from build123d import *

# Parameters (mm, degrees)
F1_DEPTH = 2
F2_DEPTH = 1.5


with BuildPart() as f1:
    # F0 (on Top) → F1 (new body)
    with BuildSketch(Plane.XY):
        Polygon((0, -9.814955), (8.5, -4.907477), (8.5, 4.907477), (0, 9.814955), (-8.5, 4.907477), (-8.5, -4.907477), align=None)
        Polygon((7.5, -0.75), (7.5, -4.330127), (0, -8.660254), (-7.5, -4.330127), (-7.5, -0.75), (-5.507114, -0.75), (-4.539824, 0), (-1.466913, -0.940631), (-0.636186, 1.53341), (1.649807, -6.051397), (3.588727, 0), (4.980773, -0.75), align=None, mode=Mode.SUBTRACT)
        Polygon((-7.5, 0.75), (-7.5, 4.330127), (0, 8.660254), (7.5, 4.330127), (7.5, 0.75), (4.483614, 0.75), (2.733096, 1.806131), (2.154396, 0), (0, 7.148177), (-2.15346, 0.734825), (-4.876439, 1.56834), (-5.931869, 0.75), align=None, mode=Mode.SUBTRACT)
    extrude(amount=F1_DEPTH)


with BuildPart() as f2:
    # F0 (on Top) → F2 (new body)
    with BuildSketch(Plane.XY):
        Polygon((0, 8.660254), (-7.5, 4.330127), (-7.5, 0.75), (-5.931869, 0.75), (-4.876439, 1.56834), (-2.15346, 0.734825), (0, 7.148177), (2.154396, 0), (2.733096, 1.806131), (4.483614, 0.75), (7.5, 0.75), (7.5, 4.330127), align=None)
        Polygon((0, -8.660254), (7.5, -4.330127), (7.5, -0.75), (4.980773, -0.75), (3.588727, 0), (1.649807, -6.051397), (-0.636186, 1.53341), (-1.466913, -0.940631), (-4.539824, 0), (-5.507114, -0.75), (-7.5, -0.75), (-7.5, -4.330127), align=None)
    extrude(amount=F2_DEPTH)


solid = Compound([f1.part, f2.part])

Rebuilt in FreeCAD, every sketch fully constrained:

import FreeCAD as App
import Part
import Sketcher

V = App.Vector
Q = App.Units.Quantity

doc = App.newDocument("Part")
params = doc.addObject("Spreadsheet::Sheet", "Params")
for row, (alias, value) in enumerate([
    ("pad1_length", "2 mm"),
    ("pad2_length", "1.5 mm"),
], start=1):
    params.set(f"A{row}", alias)
    params.set(f"B{row}", "=" + value)
    params.setAlias(f"B{row}", alias)

body = doc.addObject("PartDesign::Body", "Body")

# Sketch on XY plane
sketch1 = body.newObject("Sketcher::SketchObject", "Sketch")
sketch1.AttachmentSupport = (doc.getObject("XY_Plane"), [""])
sketch1.MapMode = "FlatFace"
sketch1.addGeometry(Part.LineSegment(V(0, -9.8, 0), V(8.5, -4.9, 0)), False)
sketch1.addGeometry(Part.LineSegment(V(8.5, -4.9, 0), V(8.5, 4.9, 0)), False)
sketch1.addGeometry(Part.LineSegment(V(8.5, 4.9, 0), V(0, 9.8, 0)), False)
sketch1.addGeometry(Part.LineSegment(V(0, 9.8, 0), V(-8.5, 4.9, 0)), False)
sketch1.addGeometry(Part.LineSegment(V(-8.5, 4.9, 0), V(-8.5, -4.9, 0)), False)
sketch1.addGeometry(Part.LineSegment(V(-8.5, -4.9, 0), V(0, -9.8, 0)), False)
sketch1.addGeometry(Part.LineSegment(V(5, -0.8, 0), V(7.5, -0.8, 0)), False)
sketch1.addGeometry(Part.LineSegment(V(7.5, -0.8, 0), V(7.5, -4.3, 0)), False)
sketch1.addGeometry(Part.LineSegment(V(7.5, -4.3, 0), V(0, -8.7, 0)), False)
sketch1.addGeometry(Part.LineSegment(V(0, -8.7, 0), V(-7.5, -4.3, 0)), False)
sketch1.addGeometry(Part.LineSegment(V(-7.5, -4.3, 0), V(-7.5, -0.8, 0)), False)
sketch1.addGeometry(Part.LineSegment(V(-7.5, -0.8, 0), V(-5.5, -0.8, 0)), False)
sketch1.addGeometry(Part.LineSegment(V(-5.5, -0.8, 0), V(-4.5, 0, 0)), False)
sketch1.addGeometry(Part.LineSegment(V(-4.5, 0, 0), V(-1.5, -0.9, 0)), False)
sketch1.addGeometry(Part.LineSegment(V(-1.5, -0.9, 0), V(-0.6, 1.5, 0)), False)
sketch1.addGeometry(Part.LineSegment(V(-0.6, 1.5, 0), V(1.6, -6.1, 0)), False)
sketch1.addGeometry(Part.LineSegment(V(1.6, -6.1, 0), V(3.6, 0, 0)), False)
sketch1.addGeometry(Part.LineSegment(V(3.6, 0, 0), V(5, -0.8, 0)), False)
sketch1.addGeometry(Part.LineSegment(V(-5.9, 0.8, 0), V(-7.5, 0.8, 0)), False)
sketch1.addGeometry(Part.LineSegment(V(-7.5, 0.8, 0), V(-7.5, 4.3, 0)), False)
sketch1.addGeometry(Part.LineSegment(V(-7.5, 4.3, 0), V(0, 8.7, 0)), False)
sketch1.addGeometry(Part.LineSegment(V(0, 8.7, 0), V(7.5, 4.3, 0)), False)
sketch1.addGeometry(Part.LineSegment(V(7.5, 4.3, 0), V(7.5, 0.8, 0)), False)
sketch1.addGeometry(Part.LineSegment(V(7.5, 0.8, 0), V(4.5, 0.8, 0)), False)
sketch1.addGeometry(Part.LineSegment(V(4.5, 0.8, 0), V(2.7, 1.8, 0)), False)
sketch1.addGeometry(Part.LineSegment(V(2.7, 1.8, 0), V(2.2, 0, 0)), False)
sketch1.addGeometry(Part.LineSegment(V(2.2, 0, 0), V(0, 7.1, 0)), False)
sketch1.addGeometry(Part.LineSegment(V(0, 7.1, 0), V(-2.2, 0.7, 0)), False)
sketch1.addGeometry(Part.LineSegment(V(-2.2, 0.7, 0), V(-4.9, 1.6, 0)), False)
sketch1.addGeometry(Part.LineSegment(V(-4.9, 1.6, 0), V(-5.9, 0.8, 0)), False)
sketch1.addConstraint(Sketcher.Constraint("Coincident", 0, 2, 1, 1))
sketch1.addConstraint(Sketcher.Constraint("Coincident", 1, 2, 2, 1))
sketch1.addConstraint(Sketcher.Constraint("Coincident", 2, 2, 3, 1))
sketch1.addConstraint(Sketcher.Constraint("Coincident", 3, 2, 4, 1))
sketch1.addConstraint(Sketcher.Constraint("Coincident", 4, 2, 5, 1))
sketch1.addConstraint(Sketcher.Constraint("Coincident", 5, 2, 0, 1))
sketch1.addConstraint(Sketcher.Constraint("Coincident", 6, 2, 7, 1))
sketch1.addConstraint(Sketcher.Constraint("Coincident", 7, 2, 8, 1))
sketch1.addConstraint(Sketcher.Constraint("Coincident", 8, 2, 9, 1))
sketch1.addConstraint(Sketcher.Constraint("Coincident", 9, 2, 10, 1))
sketch1.addConstraint(Sketcher.Constraint("Coincident", 10, 2, 11, 1))
sketch1.addConstraint(Sketcher.Constraint("Coincident", 11, 2, 12, 1))
sketch1.addConstraint(Sketcher.Constraint("Coincident", 12, 2, 13, 1))
sketch1.addConstraint(Sketcher.Constraint("Coincident", 13, 2, 14, 1))
sketch1.addConstraint(Sketcher.Constraint("Coincident", 14, 2, 15, 1))
sketch1.addConstraint(Sketcher.Constraint("Coincident", 15, 2, 16, 1))
sketch1.addConstraint(Sketcher.Constraint("Coincident", 16, 2, 17, 1))
sketch1.addConstraint(Sketcher.Constraint("Coincident", 17, 2, 6, 1))
sketch1.addConstraint(Sketcher.Constraint("Coincident", 18, 2, 19, 1))
sketch1.addConstraint(Sketcher.Constraint("Coincident", 19, 2, 20, 1))
sketch1.addConstraint(Sketcher.Constraint("Coincident", 20, 2, 21, 1))
sketch1.addConstraint(Sketcher.Constraint("Coincident", 21, 2, 22, 1))
sketch1.addConstraint(Sketcher.Constraint("Coincident", 22, 2, 23, 1))
sketch1.addConstraint(Sketcher.Constraint("Coincident", 23, 2, 24, 1))
sketch1.addConstraint(Sketcher.Constraint("Coincident", 24, 2, 25, 1))
sketch1.addConstraint(Sketcher.Constraint("Coincident", 25, 2, 26, 1))
sketch1.addConstraint(Sketcher.Constraint("Coincident", 26, 2, 27, 1))
sketch1.addConstraint(Sketcher.Constraint("Coincident", 27, 2, 28, 1))
sketch1.addConstraint(Sketcher.Constraint("Coincident", 28, 2, 29, 1))
sketch1.addConstraint(Sketcher.Constraint("Coincident", 29, 2, 18, 1))
sketch1.addConstraint(Sketcher.Constraint("Vertical", 1))
sketch1.addConstraint(Sketcher.Constraint("Vertical", 4))
sketch1.addConstraint(Sketcher.Constraint("Horizontal", 6))
sketch1.addConstraint(Sketcher.Constraint("Vertical", 7))
sketch1.addConstraint(Sketcher.Constraint("Vertical", 10))
sketch1.addConstraint(Sketcher.Constraint("Horizontal", 11))
sketch1.addConstraint(Sketcher.Constraint("Horizontal", 18))
sketch1.addConstraint(Sketcher.Constraint("Vertical", 19))
sketch1.addConstraint(Sketcher.Constraint("Vertical", 22))
sketch1.addConstraint(Sketcher.Constraint("Horizontal", 23))
sketch1.addConstraint(Sketcher.Constraint("Symmetric", 0, 2, 3, 2, -1, 1))
sketch1.addConstraint(Sketcher.Constraint("Symmetric", 2, 2, 5, 2, -1, 1))
sketch1.addConstraint(Sketcher.Constraint("Symmetric", 6, 2, 18, 2, -1, 1))
sketch1.addConstraint(Sketcher.Constraint("Symmetric", 8, 2, 20, 2, -1, 1))
sketch1.addConstraint(Sketcher.Constraint("Symmetric", 9, 2, 21, 2, -1, 1))
sketch1.addConstraint(Sketcher.Constraint("Symmetric", 7, 2, 9, 2, -2))
sketch1.addConstraint(Sketcher.Constraint("PointOnObject", 2, 2, -2))
sketch1.addConstraint(Sketcher.Constraint("PointOnObject", 8, 2, -2))
sketch1.addConstraint(Sketcher.Constraint("PointOnObject", 12, 2, -1))
sketch1.addConstraint(Sketcher.Constraint("PointOnObject", 16, 2, -1))
sketch1.addConstraint(Sketcher.Constraint("PointOnObject", 25, 2, -1))
sketch1.addConstraint(Sketcher.Constraint("PointOnObject", 26, 2, -2))
sketch1.addConstraint(Sketcher.Constraint("Parallel", 2, 5))
sketch1.addConstraint(Sketcher.Constraint("Parallel", 3, 8))
sketch1.addConstraint(Sketcher.Constraint("Parallel", 5, 9))
sketch1.addConstraint(Sketcher.Constraint("Parallel", 8, 20))
sketch1.addConstraint(Sketcher.Constraint("Parallel", 16, 25))
sketch1.addConstraint(Sketcher.Constraint("Parallel", 15, 26))
sketch1.addConstraint(Sketcher.Constraint("Parallel", 14, 27))
sketch1.addConstraint(Sketcher.Constraint("Parallel", 13, 28))
sketch1.addConstraint(Sketcher.Constraint("Parallel", 12, 29))
sketch1.addConstraint(Sketcher.Constraint("Horizontal", 6, 2, 10, 2))
sketch1.addConstraint(Sketcher.Constraint("Horizontal", 18, 2, 22, 2))
sketch1.addConstraint(Sketcher.Constraint("Angle", 0, Q("30.000004 deg")))
sketch1.addConstraint(Sketcher.Constraint("DistanceX", 3, 2, 1, 2, 17.0))
sketch1.addConstraint(Sketcher.Constraint("DistanceX", 6, 2, 0, 2, 1.0))
sketch1.addConstraint(Sketcher.Constraint("DistanceY", 10, 2, 18, 2, 1.5))
sketch1.addConstraint(Sketcher.Constraint("DistanceX", 18, 2, 18, 1, 1.568131))
sketch1.addConstraint(Sketcher.Constraint("DistanceY", 5, 2, 8, 2, 1.154701))
sketch1.addConstraint(Sketcher.Constraint("DistanceX", 11, 2, 13, 2, 4.040201))
sketch1.addConstraint(Sketcher.Constraint("DistanceX", 25, 2, 24, 2, 0.5787))
sketch1.addConstraint(Sketcher.Constraint("Distance", 12, 1.223989))
sketch1.addConstraint(Sketcher.Constraint("Distance", 15, 7.921809))
sketch1.addConstraint(Sketcher.Constraint("Distance", 17, 1.581231))
sketch1.addConstraint(Sketcher.Constraint("Distance", 26, 7.465779))
sketch1.addConstraint(Sketcher.Constraint("Distance", 27, 6.76524))
sketch1.addConstraint(Sketcher.Constraint("Distance", 29, 1.33552))
sketch1.addConstraint(Sketcher.Constraint("DistanceX", 6, 1, 6, 2, 2.519227))
sketch1.addConstraint(Sketcher.Constraint("DistanceX", 11, 1, 11, 2, 1.992886))
sketch1.addConstraint(Sketcher.Constraint("DistanceX", 23, 2, 23, 1, 3.016386))
sketch1.addConstraint(Sketcher.Constraint("DistanceY", 1, 1, 1, 2, 9.814954))
sketch1.addConstraint(Sketcher.Constraint("DistanceY", 13, 2, -1, 1, 0.940631))
sketch1.addConstraint(Sketcher.Constraint("DistanceY", -1, 1, 14, 2, 1.53341))
sketch1.addConstraint(Sketcher.Constraint("DistanceY", -1, 1, 24, 2, 1.806131))
pad1 = body.newObject("PartDesign::Pad", "Pad")
pad1.Profile = sketch1
pad1.setExpression("Length", "Params.pad1_length")
body2 = doc.addObject("PartDesign::Body", "Body001")
body2.AllowCompound = True

# Sketch on XY plane
sketch2 = body2.newObject("Sketcher::SketchObject", "Sketch001")
sketch2.AttachmentSupport = (doc.getObject("XY_Plane001"), [""])
sketch2.MapMode = "FlatFace"
sketch2.addGeometry(Part.LineSegment(V(0, 8.7, 0), V(-7.5, 4.3, 0)), False)
sketch2.addGeometry(Part.LineSegment(V(-7.5, 4.3, 0), V(-7.5, 0.8, 0)), False)
sketch2.addGeometry(Part.LineSegment(V(-7.5, 0.8, 0), V(-5.9, 0.8, 0)), False)
sketch2.addGeometry(Part.LineSegment(V(-5.9, 0.8, 0), V(-4.9, 1.6, 0)), False)
sketch2.addGeometry(Part.LineSegment(V(-4.9, 1.6, 0), V(-2.2, 0.7, 0)), False)
sketch2.addGeometry(Part.LineSegment(V(-2.2, 0.7, 0), V(0, 7.1, 0)), False)
sketch2.addGeometry(Part.LineSegment(V(0, 7.1, 0), V(2.2, 0, 0)), False)
sketch2.addGeometry(Part.LineSegment(V(2.2, 0, 0), V(2.7, 1.8, 0)), False)
sketch2.addGeometry(Part.LineSegment(V(2.7, 1.8, 0), V(4.5, 0.8, 0)), False)
sketch2.addGeometry(Part.LineSegment(V(4.5, 0.8, 0), V(7.5, 0.8, 0)), False)
sketch2.addGeometry(Part.LineSegment(V(7.5, 0.8, 0), V(7.5, 4.3, 0)), False)
sketch2.addGeometry(Part.LineSegment(V(7.5, 4.3, 0), V(0, 8.7, 0)), False)
sketch2.addGeometry(Part.LineSegment(V(0, -8.7, 0), V(7.5, -4.3, 0)), False)
sketch2.addGeometry(Part.LineSegment(V(7.5, -4.3, 0), V(7.5, -0.8, 0)), False)
sketch2.addGeometry(Part.LineSegment(V(7.5, -0.8, 0), V(5, -0.8, 0)), False)
sketch2.addGeometry(Part.LineSegment(V(5, -0.8, 0), V(3.6, 0, 0)), False)
sketch2.addGeometry(Part.LineSegment(V(3.6, 0, 0), V(1.6, -6.1, 0)), False)
sketch2.addGeometry(Part.LineSegment(V(1.6, -6.1, 0), V(-0.6, 1.5, 0)), False)
sketch2.addGeometry(Part.LineSegment(V(-0.6, 1.5, 0), V(-1.5, -0.9, 0)), False)
sketch2.addGeometry(Part.LineSegment(V(-1.5, -0.9, 0), V(-4.5, 0, 0)), False)
sketch2.addGeometry(Part.LineSegment(V(-4.5, 0, 0), V(-5.5, -0.8, 0)), False)
sketch2.addGeometry(Part.LineSegment(V(-5.5, -0.8, 0), V(-7.5, -0.8, 0)), False)
sketch2.addGeometry(Part.LineSegment(V(-7.5, -0.8, 0), V(-7.5, -4.3, 0)), False)
sketch2.addGeometry(Part.LineSegment(V(-7.5, -4.3, 0), V(0, -8.7, 0)), False)
sketch2.addConstraint(Sketcher.Constraint("Coincident", 0, 2, 1, 1))
sketch2.addConstraint(Sketcher.Constraint("Coincident", 1, 2, 2, 1))
sketch2.addConstraint(Sketcher.Constraint("Coincident", 2, 2, 3, 1))
sketch2.addConstraint(Sketcher.Constraint("Coincident", 3, 2, 4, 1))
sketch2.addConstraint(Sketcher.Constraint("Coincident", 4, 2, 5, 1))
sketch2.addConstraint(Sketcher.Constraint("Coincident", 5, 2, 6, 1))
sketch2.addConstraint(Sketcher.Constraint("Coincident", 6, 2, 7, 1))
sketch2.addConstraint(Sketcher.Constraint("Coincident", 7, 2, 8, 1))
sketch2.addConstraint(Sketcher.Constraint("Coincident", 8, 2, 9, 1))
sketch2.addConstraint(Sketcher.Constraint("Coincident", 9, 2, 10, 1))
sketch2.addConstraint(Sketcher.Constraint("Coincident", 10, 2, 11, 1))
sketch2.addConstraint(Sketcher.Constraint("Coincident", 11, 2, 0, 1))
sketch2.addConstraint(Sketcher.Constraint("Coincident", 12, 2, 13, 1))
sketch2.addConstraint(Sketcher.Constraint("Coincident", 13, 2, 14, 1))
sketch2.addConstraint(Sketcher.Constraint("Coincident", 14, 2, 15, 1))
sketch2.addConstraint(Sketcher.Constraint("Coincident", 15, 2, 16, 1))
sketch2.addConstraint(Sketcher.Constraint("Coincident", 16, 2, 17, 1))
sketch2.addConstraint(Sketcher.Constraint("Coincident", 17, 2, 18, 1))
sketch2.addConstraint(Sketcher.Constraint("Coincident", 18, 2, 19, 1))
sketch2.addConstraint(Sketcher.Constraint("Coincident", 19, 2, 20, 1))
sketch2.addConstraint(Sketcher.Constraint("Coincident", 20, 2, 21, 1))
sketch2.addConstraint(Sketcher.Constraint("Coincident", 21, 2, 22, 1))
sketch2.addConstraint(Sketcher.Constraint("Coincident", 22, 2, 23, 1))
sketch2.addConstraint(Sketcher.Constraint("Coincident", 23, 2, 12, 1))
sketch2.addConstraint(Sketcher.Constraint("Vertical", 1))
sketch2.addConstraint(Sketcher.Constraint("Horizontal", 2))
sketch2.addConstraint(Sketcher.Constraint("Horizontal", 9))
sketch2.addConstraint(Sketcher.Constraint("Vertical", 10))
sketch2.addConstraint(Sketcher.Constraint("Vertical", 13))
sketch2.addConstraint(Sketcher.Constraint("Horizontal", 14))
sketch2.addConstraint(Sketcher.Constraint("Horizontal", 21))
sketch2.addConstraint(Sketcher.Constraint("Vertical", 22))
sketch2.addConstraint(Sketcher.Constraint("Symmetric", 0, 2, 12, 2, -1, 1))
sketch2.addConstraint(Sketcher.Constraint("Symmetric", 9, 2, 21, 2, -1, 1))
sketch2.addConstraint(Sketcher.Constraint("Symmetric", 11, 2, 23, 2, -1, 1))
sketch2.addConstraint(Sketcher.Constraint("Symmetric", 1, 2, 9, 2, -2))
sketch2.addConstraint(Sketcher.Constraint("PointOnObject", 5, 2, -2))
sketch2.addConstraint(Sketcher.Constraint("PointOnObject", 6, 2, -1))
sketch2.addConstraint(Sketcher.Constraint("PointOnObject", 11, 2, -2))
sketch2.addConstraint(Sketcher.Constraint("PointOnObject", 15, 2, -1))
sketch2.addConstraint(Sketcher.Constraint("PointOnObject", 19, 2, -1))
sketch2.addConstraint(Sketcher.Constraint("Parallel", 7, 16))
sketch2.addConstraint(Sketcher.Constraint("Parallel", 6, 17))
sketch2.addConstraint(Sketcher.Constraint("Parallel", 5, 18))
sketch2.addConstraint(Sketcher.Constraint("Parallel", 4, 19))
sketch2.addConstraint(Sketcher.Constraint("Parallel", 3, 20))
sketch2.addConstraint(Sketcher.Constraint("Parallel", 11, 23))
sketch2.addConstraint(Sketcher.Constraint("Horizontal", 0, 2, 10, 2))
sketch2.addConstraint(Sketcher.Constraint("Horizontal", 14, 2, 20, 2))
sketch2.addConstraint(Sketcher.Constraint("Angle", 0, Q("-150 deg")))
sketch2.addConstraint(Sketcher.Constraint("DistanceX", 0, 2, -1, 1, 7.5))
sketch2.addConstraint(Sketcher.Constraint("DistanceY", 13, 2, 9, 2, 1.5))
sketch2.addConstraint(Sketcher.Constraint("DistanceX", 2, 1, 2, 2, 1.568131))
sketch2.addConstraint(Sketcher.Constraint("DistanceX", 6, 2, 7, 2, 0.5787))
sketch2.addConstraint(Sketcher.Constraint("Distance", 3, 1.33552))
sketch2.addConstraint(Sketcher.Constraint("Distance", 5, 6.76524))
sketch2.addConstraint(Sketcher.Constraint("Distance", 6, 7.465779))
sketch2.addConstraint(Sketcher.Constraint("Distance", 15, 1.581231))
sketch2.addConstraint(Sketcher.Constraint("Distance", 17, 7.921809))
sketch2.addConstraint(Sketcher.Constraint("Distance", 20, 1.223989))
sketch2.addConstraint(Sketcher.Constraint("DistanceX", 9, 1, 9, 2, 3.016386))
sketch2.addConstraint(Sketcher.Constraint("DistanceX", 14, 2, 14, 1, 2.519227))
sketch2.addConstraint(Sketcher.Constraint("DistanceX", 21, 2, 21, 1, 1.992886))
sketch2.addConstraint(Sketcher.Constraint("DistanceY", 1, 2, 1, 1, 3.580127))
sketch2.addConstraint(Sketcher.Constraint("DistanceX", 4, 2, -1, 1, 2.15346))
sketch2.addConstraint(Sketcher.Constraint("DistanceY", -1, 1, 7, 2, 1.806131))
sketch2.addConstraint(Sketcher.Constraint("DistanceY", -1, 1, 17, 2, 1.53341))
sketch2.addConstraint(Sketcher.Constraint("DistanceY", 18, 2, -1, 1, 0.940631))
pad2 = body2.newObject("PartDesign::Pad", "Pad001")
pad2.Profile = sketch2
pad2.setExpression("Length", "Params.pad2_length")

doc.recompute()
